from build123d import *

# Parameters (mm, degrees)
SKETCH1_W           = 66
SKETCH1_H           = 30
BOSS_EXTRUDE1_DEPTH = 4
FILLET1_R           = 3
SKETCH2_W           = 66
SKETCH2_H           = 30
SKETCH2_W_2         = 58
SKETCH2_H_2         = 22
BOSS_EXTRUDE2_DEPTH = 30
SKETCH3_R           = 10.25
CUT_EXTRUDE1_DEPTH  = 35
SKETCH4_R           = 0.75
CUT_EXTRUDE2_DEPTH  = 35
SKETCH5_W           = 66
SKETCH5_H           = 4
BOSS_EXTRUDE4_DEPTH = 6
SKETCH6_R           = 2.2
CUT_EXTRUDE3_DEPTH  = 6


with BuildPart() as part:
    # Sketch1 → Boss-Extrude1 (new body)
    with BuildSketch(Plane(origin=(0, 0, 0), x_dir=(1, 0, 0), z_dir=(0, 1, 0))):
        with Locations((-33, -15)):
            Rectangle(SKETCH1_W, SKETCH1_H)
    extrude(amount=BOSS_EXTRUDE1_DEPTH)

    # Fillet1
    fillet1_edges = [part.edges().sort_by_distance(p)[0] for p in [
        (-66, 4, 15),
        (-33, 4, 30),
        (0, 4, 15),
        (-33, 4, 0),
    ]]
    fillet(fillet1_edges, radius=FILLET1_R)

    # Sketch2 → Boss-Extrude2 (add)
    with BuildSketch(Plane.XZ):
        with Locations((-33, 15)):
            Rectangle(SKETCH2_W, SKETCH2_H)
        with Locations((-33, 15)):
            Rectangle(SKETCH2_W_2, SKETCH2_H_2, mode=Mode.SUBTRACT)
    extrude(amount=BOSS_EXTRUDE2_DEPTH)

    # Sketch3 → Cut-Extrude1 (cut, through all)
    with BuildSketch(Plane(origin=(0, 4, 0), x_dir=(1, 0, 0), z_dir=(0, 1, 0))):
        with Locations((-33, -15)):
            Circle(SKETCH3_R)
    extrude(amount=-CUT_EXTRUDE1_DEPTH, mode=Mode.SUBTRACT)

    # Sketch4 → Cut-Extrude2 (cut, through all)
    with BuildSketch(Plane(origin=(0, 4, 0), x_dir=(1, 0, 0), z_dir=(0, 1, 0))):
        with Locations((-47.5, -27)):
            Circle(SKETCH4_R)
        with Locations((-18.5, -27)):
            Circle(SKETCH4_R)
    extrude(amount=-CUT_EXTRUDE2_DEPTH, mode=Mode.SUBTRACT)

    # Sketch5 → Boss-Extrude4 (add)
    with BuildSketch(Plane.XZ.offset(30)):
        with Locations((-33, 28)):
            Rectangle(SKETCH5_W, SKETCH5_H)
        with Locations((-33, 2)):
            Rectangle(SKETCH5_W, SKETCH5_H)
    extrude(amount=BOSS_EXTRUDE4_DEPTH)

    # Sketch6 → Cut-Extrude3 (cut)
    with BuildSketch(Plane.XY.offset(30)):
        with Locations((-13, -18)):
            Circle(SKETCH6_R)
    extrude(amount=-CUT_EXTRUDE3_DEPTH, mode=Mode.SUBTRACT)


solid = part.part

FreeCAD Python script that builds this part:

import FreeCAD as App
import Part
import Sketcher

V = App.Vector
Q = App.Units.Quantity


def edges_at(feature, points):
    """Names of the edges that pass closest to the given points."""
    edges = feature.Shape.Edges
    near = lambda p: min(range(len(edges)), key=lambda i: edges[i].distToShape(Part.Vertex(*p))[0])
    return sorted({f"Edge{near(p) + 1}" for p in points})


def add_polygon(sketch, points):
    """Adds a closed chain of lines whose ends are joined by coincident constraints."""
    first, n = sketch.GeometryCount, len(points)
    for a, b in zip(points, points[1:] + points[:1]):
        sketch.addGeometry(Part.LineSegment(App.Vector(*a, 0), App.Vector(*b, 0)), False)
    for i in range(n):
        sketch.addConstraint(Sketcher.Constraint("Coincident", first + i, 2, first + (i + 1) % n, 1))

doc = App.newDocument("Part")
body = doc.addObject("PartDesign::Body", "Body")

sketch1 = doc.addObject("Sketcher::SketchObject", "Sketch")
body.addObject(sketch1)
sketch1.AttachmentSupport = (doc.XZ_Plane, [""])
sketch1.MapMode = "FlatFace"
add_polygon(sketch1, [(-66, 0), (-66, 30), (0, 30), (0, 0)])
sketch1.addConstraint([
    Sketcher.Constraint("Vertical", 0),
    Sketcher.Constraint("Horizontal", 1),
    Sketcher.Constraint("Vertical", 2),
    Sketcher.Constraint("Horizontal", 3),
    Sketcher.Constraint("Coincident", 2, 2, -1, 1),
    Sketcher.Constraint("DistanceX", 1, 1, 1, 2, Q("66 mm")),
    Sketcher.Constraint("DistanceY", 0, 1, 0, 2, Q("30 mm")),
])
pad1 = doc.addObject("PartDesign::Pad", "Pad")
body.addObject(pad1)
pad1.Profile = sketch1
pad1.Length = 4
pad1.Reversed = True
doc.recompute()

fillet = doc.addObject("PartDesign::Fillet", "Fillet")
body.addObject(fillet)
fillet.Base = (pad1, edges_at(pad1, [
    (-66, 4, 15),
    (-33, 4, 30),
    (0, 4, 15),
    (-33, 4, 0),
]))
fillet.Radius = 3

sketch2 = doc.addObject("Sketcher::SketchObject", "Sketch001")
body.addObject(sketch2)
sketch2.AttachmentSupport = (doc.XZ_Plane, [""])
sketch2.MapMode = "FlatFace"
add_polygon(sketch2, [(-66, 30), (-66, 0), (0, 0), (0, 30)])
add_polygon(sketch2, [(-4, 4), (-62, 4), (-62, 26), (-4, 26)])
sketch2.addConstraint([
    Sketcher.Constraint("Vertical", 0),
    Sketcher.Constraint("Horizontal", 1),
    Sketcher.Constraint("Vertical", 2),
    Sketcher.Constraint("Horizontal", 3),
    Sketcher.Constraint("Horizontal", 4),
    Sketcher.Constraint("Vertical", 5),
    Sketcher.Constraint("Horizontal", 6),
    Sketcher.Constraint("Vertical", 7),
    Sketcher.Constraint("Coincident", 1, 2, -1, 1),
    Sketcher.Constraint("DistanceX", 1, 1, 1, 2, Q("66 mm")),
    Sketcher.Constraint("DistanceX", 4, 2, 4, 1, Q("58 mm")),
    Sketcher.Constraint("DistanceY", 0, 2, 0, 1, Q("30 mm")),
    Sketcher.Constraint("DistanceY", 5, 1, 5, 2, Q("22 mm")),
    Sketcher.Constraint("DistanceX", 4, 2, -1, 1, Q("62 mm")),
    Sketcher.Constraint("DistanceY", -1, 1, 4, 2, Q("4 mm")),
])
pad2 = doc.addObject("PartDesign::Pad", "Pad001")
body.addObject(pad2)
pad2.Profile = sketch2
pad2.Length = 30

sketch3 = doc.addObject("Sketcher::SketchObject", "Sketch002")
body.addObject(sketch3)
sketch3.AttachmentSupport = (doc.XZ_Plane, [""])
sketch3.MapMode = "FlatFace"
sketch3.AttachmentOffset = App.Placement(V(0, 0, -4), App.Rotation())
sketch3.addGeometry(Part.Circle(V(-33, 15, 0), V(0, 0, 1), 10), False)
sketch3.addConstraint([
    Sketcher.Constraint("Diameter", 0, Q("20.5 mm")),
    Sketcher.Constraint("DistanceX", 0, 3, -1, 1, Q("33 mm")),
    Sketcher.Constraint("DistanceY", -1, 1, 0, 3, Q("15 mm")),
])
pocket1 = doc.addObject("PartDesign::Pocket", "Pocket")
body.addObject(pocket1)
pocket1.Profile = sketch3
pocket1.Type = "ThroughAll"
pocket1.Reversed = True

sketch4 = doc.addObject("Sketcher::SketchObject", "Sketch003")
body.addObject(sketch4)
sketch4.AttachmentSupport = (doc.XZ_Plane, [""])
sketch4.MapMode = "FlatFace"
sketch4.AttachmentOffset = App.Placement(V(0, 0, -4), App.Rotation())
sketch4.addGeometry([
    Part.Circle(V(-47.5, 27, 0), V(0, 0, 1), 0.8),
    Part.Circle(V(-18.5, 27, 0), V(0, 0, 1), 0.8),
], False)
sketch4.addConstraint([
    Sketcher.Constraint("Equal", 0, 1),
    Sketcher.Constraint("Horizontal", 0, 3, 1, 3),
    Sketcher.Constraint("Diameter", 0, Q("1.5 mm")),
    Sketcher.Constraint("DistanceY", -1, 1, 0, 3, Q("27 mm")),
    Sketcher.Constraint("DistanceX", 0, 3, 1, 3, Q("29 mm")),
    Sketcher.Constraint("DistanceX", 0, 3, -1, 1, Q("47.5 mm")),
])
pocket2 = doc.addObject("PartDesign::Pocket", "Pocket001")
body.addObject(pocket2)
pocket2.Profile = sketch4
pocket2.Type = "ThroughAll"
pocket2.Reversed = True

sketch5 = doc.addObject("Sketcher::SketchObject", "Sketch004")
body.addObject(sketch5)
sketch5.AttachmentSupport = (doc.XZ_Plane, [""])
sketch5.MapMode = "FlatFace"
sketch5.AttachmentOffset = App.Placement(V(0, 0, 30), App.Rotation())
add_polygon(sketch5, [(-66, 30), (-66, 26), (0, 26), (0, 30)])
add_polygon(sketch5, [(-66, 4), (-66, 0), (0, 0), (0, 4)])
sketch5.addConstraint([
    Sketcher.Constraint("Vertical", 0),
    Sketcher.Constraint("Horizontal", 1),
    Sketcher.Constraint("Vertical", 2),
    Sketcher.Constraint("Horizontal", 3),
    Sketcher.Constraint("Vertical", 4),
    Sketcher.Constraint("Horizontal", 5),
    Sketcher.Constraint("Vertical", 6),
    Sketcher.Constraint("Horizontal", 7),
    Sketcher.Constraint("Coincident", 5, 2, -1, 1),
    Sketcher.Constraint("PointOnObject", 1, 2, -2),
    Sketcher.Constraint("Vertical", 3, 2, 4, 2),
    Sketcher.Constraint("Equal", 2, 4),
    Sketcher.Constraint("DistanceX", 1, 1, 1, 2, Q("66 mm")),
    Sketcher.Constraint("DistanceY", 0, 2, 0, 1, Q("4 mm")),
    Sketcher.Constraint("DistanceY", -1, 1, 0, 2, Q("26 mm")),
])
pad3 = doc.addObject("PartDesign::Pad", "Pad002")
body.addObject(pad3)
pad3.Profile = sketch5
pad3.Length = 6

sketch6 = doc.addObject("Sketcher::SketchObject", "Sketch005")
body.addObject(sketch6)
sketch6.AttachmentSupport = (doc.XY_Plane, [""])
sketch6.MapMode = "FlatFace"
sketch6.AttachmentOffset = App.Placement(V(0, 0, 30), App.Rotation())
sketch6.addGeometry(Part.Circle(V(-13, -18, 0), V(0, 0, 1), 2.2), False)
sketch6.addConstraint([
    Sketcher.Constraint("Diameter", 0, Q("4.4 mm")),
    Sketcher.Constraint("DistanceX", 0, 3, -1, 1, Q("13 mm")),
    Sketcher.Constraint("DistanceY", 0, 3, -1, 1, Q("18 mm")),
])
pocket3 = doc.addObject("PartDesign::Pocket", "Pocket002")
body.addObject(pocket3)
pocket3.Profile = sketch6
pocket3.Length = 6

doc.recompute()
